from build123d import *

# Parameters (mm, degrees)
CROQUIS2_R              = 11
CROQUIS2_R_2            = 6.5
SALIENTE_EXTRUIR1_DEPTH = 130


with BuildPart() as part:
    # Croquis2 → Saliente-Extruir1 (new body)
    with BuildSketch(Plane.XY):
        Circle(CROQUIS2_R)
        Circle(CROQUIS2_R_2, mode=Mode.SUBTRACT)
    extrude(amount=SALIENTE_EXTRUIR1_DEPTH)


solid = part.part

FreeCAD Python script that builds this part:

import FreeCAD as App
import Part
import Sketcher
from FreeCAD import Vector
Q = App.Units.Quantity

doc = App.newDocument("Part")
body = doc.addObject("PartDesign::Body", "Body")

# Sketch on XY plane
sketch1 = body.newObject("Sketcher::SketchObject", "Sketch")
sketch1.AttachmentSupport = (doc.getObject("XY_Plane"), [""])
sketch1.MapMode = "FlatFace"
sketch1.addGeometry([
    Part.Circle(Vector(0, 0, 0), Vector(0, 0, 1), 11),
    Part.Circle(Vector(0, 0, 0), Vector(0, 0, 1), 6.5),
], False)
sketch1.addConstraint([
    Sketcher.Constraint("Coincident", 0, 3, -1, 1),
    Sketcher.Constraint("Coincident", 1, 3, -1, 1),
    Sketcher.Constraint("Diameter", 0, Q("22 mm")),
    Sketcher.Constraint("Diameter", 1, Q("13 mm")),
])
pad1 = body.newObject("PartDesign::Pad", "Pad")
pad1.Profile = sketch1
pad1.Length = 130

doc.recompute()
